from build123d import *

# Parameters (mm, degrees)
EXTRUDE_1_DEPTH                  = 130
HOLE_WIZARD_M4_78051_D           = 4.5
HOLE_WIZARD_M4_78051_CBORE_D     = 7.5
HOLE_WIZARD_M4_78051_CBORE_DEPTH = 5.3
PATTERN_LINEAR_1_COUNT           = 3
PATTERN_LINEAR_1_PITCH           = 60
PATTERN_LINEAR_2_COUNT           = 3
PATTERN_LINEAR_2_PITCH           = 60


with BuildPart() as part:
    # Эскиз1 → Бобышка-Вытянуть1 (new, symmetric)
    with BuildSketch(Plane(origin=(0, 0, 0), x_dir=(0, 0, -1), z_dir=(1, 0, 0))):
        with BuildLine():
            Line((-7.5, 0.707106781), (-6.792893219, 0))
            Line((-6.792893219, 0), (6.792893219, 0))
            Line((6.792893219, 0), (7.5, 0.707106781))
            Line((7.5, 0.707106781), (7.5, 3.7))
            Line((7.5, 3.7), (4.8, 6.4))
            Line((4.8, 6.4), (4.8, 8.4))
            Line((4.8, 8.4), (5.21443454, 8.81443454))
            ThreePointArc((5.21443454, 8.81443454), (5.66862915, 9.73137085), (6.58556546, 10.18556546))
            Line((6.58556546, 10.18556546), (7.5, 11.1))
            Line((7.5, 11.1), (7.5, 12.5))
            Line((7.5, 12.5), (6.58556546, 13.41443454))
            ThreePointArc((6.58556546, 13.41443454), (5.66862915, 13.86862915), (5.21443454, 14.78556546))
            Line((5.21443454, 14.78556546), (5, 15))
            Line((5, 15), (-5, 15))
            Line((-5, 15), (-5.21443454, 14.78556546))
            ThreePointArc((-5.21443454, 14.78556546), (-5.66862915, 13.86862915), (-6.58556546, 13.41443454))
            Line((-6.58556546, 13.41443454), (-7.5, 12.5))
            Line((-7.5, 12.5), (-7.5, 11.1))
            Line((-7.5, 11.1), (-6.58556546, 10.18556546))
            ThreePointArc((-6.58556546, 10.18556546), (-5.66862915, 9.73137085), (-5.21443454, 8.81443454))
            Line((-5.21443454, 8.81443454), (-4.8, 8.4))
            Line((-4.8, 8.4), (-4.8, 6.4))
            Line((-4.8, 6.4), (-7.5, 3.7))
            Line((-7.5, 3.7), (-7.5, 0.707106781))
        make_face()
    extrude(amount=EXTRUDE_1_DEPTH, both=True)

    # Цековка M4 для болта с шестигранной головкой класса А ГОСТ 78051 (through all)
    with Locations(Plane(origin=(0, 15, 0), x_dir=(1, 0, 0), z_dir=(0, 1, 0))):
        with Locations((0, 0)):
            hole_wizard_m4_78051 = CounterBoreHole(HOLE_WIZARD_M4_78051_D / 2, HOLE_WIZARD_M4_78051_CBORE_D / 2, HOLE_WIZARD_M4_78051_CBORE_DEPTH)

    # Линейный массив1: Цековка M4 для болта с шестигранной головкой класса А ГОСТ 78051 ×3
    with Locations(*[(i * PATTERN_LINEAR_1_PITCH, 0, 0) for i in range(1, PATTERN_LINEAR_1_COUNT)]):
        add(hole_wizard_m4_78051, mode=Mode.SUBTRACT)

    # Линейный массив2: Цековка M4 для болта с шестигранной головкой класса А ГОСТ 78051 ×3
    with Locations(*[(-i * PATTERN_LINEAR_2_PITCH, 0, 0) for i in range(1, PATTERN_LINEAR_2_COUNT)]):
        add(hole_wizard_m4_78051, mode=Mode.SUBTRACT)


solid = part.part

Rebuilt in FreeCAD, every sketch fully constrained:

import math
import FreeCAD as App
import Part
import Sketcher

doc = App.newDocument("Part")
params = doc.addObject("Spreadsheet::Sheet", "Params")
for row, (alias, value) in enumerate([
    ("sketch1_radius", "1.6 mm"),
    ("sketch1_width", "2 mm"),
    ("sketch1_height", "10 mm"),
    ("sketch1_length", "1 mm"),
    ("sketch1_width2", "1.4 mm"),
    ("pad1_length", "260 mm"),
    ("sketch2_diameter", "4.5 mm"),
    ("hole_diameter", "4.5 mm"),
    ("hole_cbore_diameter", "7.5 mm"),
    ("hole_cbore_depth", "5.3 mm"),
    ("linearpattern_pitch", "60 mm"),
    ("linearpattern2_pitch", "60 mm"),
], start=1):
    params.set(f"A{row}", alias)
    params.set(f"B{row}", "=" + value)
    params.setAlias(f"B{row}", alias)

body = doc.addObject("PartDesign::Body", "Body")

sketch1 = body.newObject("Sketcher::SketchObject", "Sketch")
sketch1.AttachmentSupport = (doc.getObject("YZ_Plane"), [""])
sketch1.MapMode = "FlatFace"
sketch1.addGeometry(Part.LineSegment(App.Vector(0.71, 7.5, 0), App.Vector(0, 6.79, 0)), False)
sketch1.addGeometry(Part.LineSegment(App.Vector(0, 6.79, 0), App.Vector(0, -6.79, 0)), False)
sketch1.addGeometry(Part.LineSegment(App.Vector(0, -6.79, 0), App.Vector(0.71, -7.5, 0)), False)
sketch1.addGeometry(Part.LineSegment(App.Vector(0.71, -7.5, 0), App.Vector(3.7, -7.5, 0)), False)
sketch1.addGeometry(Part.LineSegment(App.Vector(3.7, -7.5, 0), App.Vector(6.4, -4.8, 0)), False)
sketch1.addGeometry(Part.LineSegment(App.Vector(6.4, -4.8, 0), App.Vector(8.4, -4.8, 0)), False)
sketch1.addGeometry(Part.LineSegment(App.Vector(8.4, -4.8, 0), App.Vector(8.81, -5.21, 0)), False)
sketch1.addGeometry(Part.ArcOfCircle(Part.Circle(App.Vector(8.6, -6.8, 0), App.Vector(0, 0, 1), 1.6), math.radians(8), math.radians(82)), False)
sketch1.addGeometry(Part.LineSegment(App.Vector(10.19, -6.59, 0), App.Vector(11.1, -7.5, 0)), False)
sketch1.addGeometry(Part.LineSegment(App.Vector(11.1, -7.5, 0), App.Vector(12.5, -7.5, 0)), False)
sketch1.addGeometry(Part.LineSegment(App.Vector(12.5, -7.5, 0), App.Vector(13.41, -6.59, 0)), False)
sketch1.addGeometry(Part.ArcOfCircle(Part.Circle(App.Vector(15, -6.8, 0), App.Vector(0, 0, 1), 1.6), math.radians(98), math.radians(172)), False)
sketch1.addGeometry(Part.LineSegment(App.Vector(14.79, -5.21, 0), App.Vector(15, -5, 0)), False)
sketch1.addGeometry(Part.LineSegment(App.Vector(15, -5, 0), App.Vector(15, 5, 0)), False)
sketch1.addGeometry(Part.LineSegment(App.Vector(15, 5, 0), App.Vector(14.79, 5.21, 0)), False)
sketch1.addGeometry(Part.ArcOfCircle(Part.Circle(App.Vector(15, 6.8, 0), App.Vector(0, 0, 1), 1.6), math.radians(-172), math.radians(-98)), False)
sketch1.addGeometry(Part.LineSegment(App.Vector(13.41, 6.59, 0), App.Vector(12.5, 7.5, 0)), False)
sketch1.addGeometry(Part.LineSegment(App.Vector(12.5, 7.5, 0), App.Vector(11.1, 7.5, 0)), False)
sketch1.addGeometry(Part.LineSegment(App.Vector(11.1, 7.5, 0), App.Vector(10.19, 6.59, 0)), False)
sketch1.addGeometry(Part.ArcOfCircle(Part.Circle(App.Vector(8.6, 6.8, 0), App.Vector(0, 0, 1), 1.6), math.radians(-82), math.radians(-8)), False)
sketch1.addGeometry(Part.LineSegment(App.Vector(8.81, 5.21, 0), App.Vector(8.4, 4.8, 0)), False)
sketch1.addGeometry(Part.LineSegment(App.Vector(8.4, 4.8, 0), App.Vector(6.4, 4.8, 0)), False)
sketch1.addGeometry(Part.LineSegment(App.Vector(6.4, 4.8, 0), App.Vector(3.7, 7.5, 0)), False)
sketch1.addGeometry(Part.LineSegment(App.Vector(3.7, 7.5, 0), App.Vector(0.71, 7.5, 0)), False)
sketch1.addConstraint(Sketcher.Constraint("Coincident", 0, 2, 1, 1))
sketch1.addConstraint(Sketcher.Constraint("Coincident", 1, 2, 2, 1))
sketch1.addConstraint(Sketcher.Constraint("Coincident", 2, 2, 3, 1))
sketch1.addConstraint(Sketcher.Constraint("Coincident", 3, 2, 4, 1))
sketch1.addConstraint(Sketcher.Constraint("Coincident", 4, 2, 5, 1))
sketch1.addConstraint(Sketcher.Constraint("Coincident", 5, 2, 6, 1))
sketch1.addConstraint(Sketcher.Constraint("Coincident", 6, 2, 7, 2))
sketch1.addConstraint(Sketcher.Constraint("Coincident", 7, 1, 8, 1))
sketch1.addConstraint(Sketcher.Constraint("Coincident", 8, 2, 9, 1))
sketch1.addConstraint(Sketcher.Constraint("Coincident", 9, 2, 10, 1))
sketch1.addConstraint(Sketcher.Constraint("Coincident", 10, 2, 11, 2))
sketch1.addConstraint(Sketcher.Constraint("Coincident", 11, 1, 12, 1))
sketch1.addConstraint(Sketcher.Constraint("Coincident", 12, 2, 13, 1))
sketch1.addConstraint(Sketcher.Constraint("Coincident", 13, 2, 14, 1))
sketch1.addConstraint(Sketcher.Constraint("Coincident", 14, 2, 15, 2))
sketch1.addConstraint(Sketcher.Constraint("Coincident", 15, 1, 16, 1))
sketch1.addConstraint(Sketcher.Constraint("Coincident", 16, 2, 17, 1))
sketch1.addConstraint(Sketcher.Constraint("Coincident", 17, 2, 18, 1))
sketch1.addConstraint(Sketcher.Constraint("Coincident", 18, 2, 19, 2))
sketch1.addConstraint(Sketcher.Constraint("Coincident", 19, 1, 20, 1))
sketch1.addConstraint(Sketcher.Constraint("Coincident", 20, 2, 21, 1))
sketch1.addConstraint(Sketcher.Constraint("Coincident", 21, 2, 22, 1))
sketch1.addConstraint(Sketcher.Constraint("Coincident", 22, 2, 23, 1))
sketch1.addConstraint(Sketcher.Constraint("Coincident", 23, 2, 0, 1))
sketch1.addConstraint(Sketcher.Constraint("Vertical", 1))
sketch1.addConstraint(Sketcher.Constraint("Horizontal", 3))
sketch1.addConstraint(Sketcher.Constraint("Horizontal", 5))
sketch1.addConstraint(Sketcher.Constraint("Horizontal", 9))
sketch1.addConstraint(Sketcher.Constraint("Vertical", 13))
sketch1.addConstraint(Sketcher.Constraint("Horizontal", 17))
sketch1.addConstraint(Sketcher.Constraint("Horizontal", 21))
sketch1.addConstraint(Sketcher.Constraint("Horizontal", 23))
sketch1.addConstraint(Sketcher.Constraint("Equal", 7, 11))
sketch1.addConstraint(Sketcher.Constraint("Equal", 11, 15))
sketch1.addConstraint(Sketcher.Constraint("Equal", 15, 19))
sketch1.addConstraint(Sketcher.Constraint("Symmetric", 0, 2, 1, 2, -1, 1))
sketch1.addConstraint(Sketcher.Constraint("Symmetric", 11, 3, 15, 3, -1))
sketch1.addConstraint(Sketcher.Constraint("Symmetric", 7, 3, 19, 3, -1))
sketch1.addConstraint(Sketcher.Constraint("Symmetric", 9, 2, 16, 2, -1))
sketch1.addConstraint(Sketcher.Constraint("Symmetric", 5, 2, 20, 2, -1))
sketch1.addConstraint(Sketcher.Constraint("Symmetric", 3, 2, 22, 2, -1))
sketch1.addConstraint(Sketcher.Constraint("Perpendicular", 0, 2))
sketch1.addConstraint(Sketcher.Constraint("Perpendicular", 2, 4))
sketch1.addConstraint(Sketcher.Constraint("Perpendicular", 4, 6))
sketch1.addConstraint(Sketcher.Constraint("Parallel", 6, 8))
sketch1.addConstraint(Sketcher.Constraint("Perpendicular", 8, 10))
sketch1.addConstraint(Sketcher.Constraint("Parallel", 10, 12))
sketch1.addConstraint(Sketcher.Constraint("Perpendicular", 12, 14))
sketch1.addConstraint(Sketcher.Constraint("Parallel", 14, 16))
sketch1.addConstraint(Sketcher.Constraint("Perpendicular", 16, 18))
sketch1.addConstraint(Sketcher.Constraint("Parallel", 18, 20))
sketch1.addConstraint(Sketcher.Constraint("Perpendicular", 20, 22))
sketch1.addConstraint(Sketcher.Constraint("Horizontal", 7, 3, 11, 3))
sketch1.addConstraint(Sketcher.Constraint("Horizontal", 3, 2, 8, 2))
sketch1.addConstraint(Sketcher.Constraint("Horizontal", 7, 1, 10, 2))
sketch1.addConstraint(Sketcher.Constraint("Horizontal", 6, 2, 11, 1))
sketch1.addConstraint(Sketcher.Constraint("Horizontal", 15, 1, 18, 2))
sketch1.addConstraint(Sketcher.Constraint("Horizontal", 14, 2, 19, 1))
sketch1.addConstraint(Sketcher.Constraint("Vertical", 15, 3, 12, 2))
sketch1.addConstraint(Sketcher.Constraint("Vertical", 11, 1, 14, 2))
sketch1.addConstraint(Sketcher.Constraint("Radius", 7, 1.6))
sketch1.addConstraint(Sketcher.Constraint("DistanceX", 5, 1, 5, 2, 2.0))
sketch1.addConstraint(Sketcher.Constraint("DistanceY", 13, 1, 13, 2, 10.0))
sketch1.addConstraint(Sketcher.Constraint("Distance", 0, 1.0))
sketch1.addConstraint(Sketcher.Constraint("DistanceX", 9, 1, 9, 2, 1.4))
sketch1.addConstraint(Sketcher.Constraint("DistanceX", -1, 1, 11, 3, 15.0))
sketch1.addConstraint(Sketcher.Constraint("DistanceY", 7, 3, 4, 2, 2.0))
sketch1.addConstraint(Sketcher.Constraint("DistanceX", -1, 1, 7, 3, 8.6))
sketch1.addConstraint(Sketcher.Constraint("DistanceY", 7, 3, -1, 1, 6.8))
sketch1.addConstraint(Sketcher.Constraint("DistanceY", 2, 2, -1, 1, 7.5))
sketch1.setExpression("Constraints[60]", "Params.sketch1_radius")
sketch1.setExpression("Constraints[61]", "Params.sketch1_width")
sketch1.setExpression("Constraints[62]", "Params.sketch1_height")
sketch1.setExpression("Constraints[63]", "Params.sketch1_length")
sketch1.setExpression("Constraints[64]", "Params.sketch1_width2")
pad1 = body.newObject("PartDesign::Pad", "Pad")
pad1.Profile = sketch1
pad1.setExpression("Length", "Params.pad1_length")
pad1.Midplane = True

sketch2 = body.newObject("Sketcher::SketchObject", "Sketch001")
sketch2.AttachmentSupport = (doc.getObject("XZ_Plane"), [""])
sketch2.MapMode = "FlatFace"
sketch2.AttachmentOffset = App.Placement(App.Vector(0, 0, -15), App.Rotation())
sketch2.addGeometry(Part.Circle(App.Vector(0, 0, 0), App.Vector(0, 0, 1), 2.2), False)
sketch2.addConstraint(Sketcher.Constraint("Coincident", 0, 3, -1, 1))
sketch2.addConstraint(Sketcher.Constraint("Diameter", 0, 4.5))
sketch2.setExpression("Constraints[1]", "Params.sketch2_diameter")
doc.recompute()
hole = body.newObject("PartDesign::Hole", "Hole")
hole.Profile = sketch2
hole.ThreadType = "None"
hole.setExpression("Diameter", "Params.hole_diameter")
hole.DepthType = "ThroughAll"
hole.HoleCutType = "Counterbore"
hole.setExpression("HoleCutDiameter", "Params.hole_cbore_diameter")
hole.setExpression("HoleCutDepth", "Params.hole_cbore_depth")
hole.Reversed = True
doc.recompute()

linearpattern = body.newObject("PartDesign::LinearPattern", "LinearPattern")
linearpattern.Originals = [hole]
linearpattern.Direction = (doc.getObject("X_Axis"), [""])
linearpattern.Mode = "offset"
linearpattern.setExpression("Offset", "Params.linearpattern_pitch")
linearpattern.Occurrences = 3
body.Tip = linearpattern
doc.recompute()

linearpattern2 = body.newObject("PartDesign::LinearPattern", "LinearPattern001")
linearpattern2.Originals = [hole]
linearpattern2.Direction = (doc.getObject("X_Axis"), [""])
linearpattern2.Mode = "offset"
linearpattern2.setExpression("Offset", "Params.linearpattern2_pitch")
linearpattern2.Occurrences = 3
linearpattern2.Reversed = True
body.Tip = linearpattern2

doc.recompute()
